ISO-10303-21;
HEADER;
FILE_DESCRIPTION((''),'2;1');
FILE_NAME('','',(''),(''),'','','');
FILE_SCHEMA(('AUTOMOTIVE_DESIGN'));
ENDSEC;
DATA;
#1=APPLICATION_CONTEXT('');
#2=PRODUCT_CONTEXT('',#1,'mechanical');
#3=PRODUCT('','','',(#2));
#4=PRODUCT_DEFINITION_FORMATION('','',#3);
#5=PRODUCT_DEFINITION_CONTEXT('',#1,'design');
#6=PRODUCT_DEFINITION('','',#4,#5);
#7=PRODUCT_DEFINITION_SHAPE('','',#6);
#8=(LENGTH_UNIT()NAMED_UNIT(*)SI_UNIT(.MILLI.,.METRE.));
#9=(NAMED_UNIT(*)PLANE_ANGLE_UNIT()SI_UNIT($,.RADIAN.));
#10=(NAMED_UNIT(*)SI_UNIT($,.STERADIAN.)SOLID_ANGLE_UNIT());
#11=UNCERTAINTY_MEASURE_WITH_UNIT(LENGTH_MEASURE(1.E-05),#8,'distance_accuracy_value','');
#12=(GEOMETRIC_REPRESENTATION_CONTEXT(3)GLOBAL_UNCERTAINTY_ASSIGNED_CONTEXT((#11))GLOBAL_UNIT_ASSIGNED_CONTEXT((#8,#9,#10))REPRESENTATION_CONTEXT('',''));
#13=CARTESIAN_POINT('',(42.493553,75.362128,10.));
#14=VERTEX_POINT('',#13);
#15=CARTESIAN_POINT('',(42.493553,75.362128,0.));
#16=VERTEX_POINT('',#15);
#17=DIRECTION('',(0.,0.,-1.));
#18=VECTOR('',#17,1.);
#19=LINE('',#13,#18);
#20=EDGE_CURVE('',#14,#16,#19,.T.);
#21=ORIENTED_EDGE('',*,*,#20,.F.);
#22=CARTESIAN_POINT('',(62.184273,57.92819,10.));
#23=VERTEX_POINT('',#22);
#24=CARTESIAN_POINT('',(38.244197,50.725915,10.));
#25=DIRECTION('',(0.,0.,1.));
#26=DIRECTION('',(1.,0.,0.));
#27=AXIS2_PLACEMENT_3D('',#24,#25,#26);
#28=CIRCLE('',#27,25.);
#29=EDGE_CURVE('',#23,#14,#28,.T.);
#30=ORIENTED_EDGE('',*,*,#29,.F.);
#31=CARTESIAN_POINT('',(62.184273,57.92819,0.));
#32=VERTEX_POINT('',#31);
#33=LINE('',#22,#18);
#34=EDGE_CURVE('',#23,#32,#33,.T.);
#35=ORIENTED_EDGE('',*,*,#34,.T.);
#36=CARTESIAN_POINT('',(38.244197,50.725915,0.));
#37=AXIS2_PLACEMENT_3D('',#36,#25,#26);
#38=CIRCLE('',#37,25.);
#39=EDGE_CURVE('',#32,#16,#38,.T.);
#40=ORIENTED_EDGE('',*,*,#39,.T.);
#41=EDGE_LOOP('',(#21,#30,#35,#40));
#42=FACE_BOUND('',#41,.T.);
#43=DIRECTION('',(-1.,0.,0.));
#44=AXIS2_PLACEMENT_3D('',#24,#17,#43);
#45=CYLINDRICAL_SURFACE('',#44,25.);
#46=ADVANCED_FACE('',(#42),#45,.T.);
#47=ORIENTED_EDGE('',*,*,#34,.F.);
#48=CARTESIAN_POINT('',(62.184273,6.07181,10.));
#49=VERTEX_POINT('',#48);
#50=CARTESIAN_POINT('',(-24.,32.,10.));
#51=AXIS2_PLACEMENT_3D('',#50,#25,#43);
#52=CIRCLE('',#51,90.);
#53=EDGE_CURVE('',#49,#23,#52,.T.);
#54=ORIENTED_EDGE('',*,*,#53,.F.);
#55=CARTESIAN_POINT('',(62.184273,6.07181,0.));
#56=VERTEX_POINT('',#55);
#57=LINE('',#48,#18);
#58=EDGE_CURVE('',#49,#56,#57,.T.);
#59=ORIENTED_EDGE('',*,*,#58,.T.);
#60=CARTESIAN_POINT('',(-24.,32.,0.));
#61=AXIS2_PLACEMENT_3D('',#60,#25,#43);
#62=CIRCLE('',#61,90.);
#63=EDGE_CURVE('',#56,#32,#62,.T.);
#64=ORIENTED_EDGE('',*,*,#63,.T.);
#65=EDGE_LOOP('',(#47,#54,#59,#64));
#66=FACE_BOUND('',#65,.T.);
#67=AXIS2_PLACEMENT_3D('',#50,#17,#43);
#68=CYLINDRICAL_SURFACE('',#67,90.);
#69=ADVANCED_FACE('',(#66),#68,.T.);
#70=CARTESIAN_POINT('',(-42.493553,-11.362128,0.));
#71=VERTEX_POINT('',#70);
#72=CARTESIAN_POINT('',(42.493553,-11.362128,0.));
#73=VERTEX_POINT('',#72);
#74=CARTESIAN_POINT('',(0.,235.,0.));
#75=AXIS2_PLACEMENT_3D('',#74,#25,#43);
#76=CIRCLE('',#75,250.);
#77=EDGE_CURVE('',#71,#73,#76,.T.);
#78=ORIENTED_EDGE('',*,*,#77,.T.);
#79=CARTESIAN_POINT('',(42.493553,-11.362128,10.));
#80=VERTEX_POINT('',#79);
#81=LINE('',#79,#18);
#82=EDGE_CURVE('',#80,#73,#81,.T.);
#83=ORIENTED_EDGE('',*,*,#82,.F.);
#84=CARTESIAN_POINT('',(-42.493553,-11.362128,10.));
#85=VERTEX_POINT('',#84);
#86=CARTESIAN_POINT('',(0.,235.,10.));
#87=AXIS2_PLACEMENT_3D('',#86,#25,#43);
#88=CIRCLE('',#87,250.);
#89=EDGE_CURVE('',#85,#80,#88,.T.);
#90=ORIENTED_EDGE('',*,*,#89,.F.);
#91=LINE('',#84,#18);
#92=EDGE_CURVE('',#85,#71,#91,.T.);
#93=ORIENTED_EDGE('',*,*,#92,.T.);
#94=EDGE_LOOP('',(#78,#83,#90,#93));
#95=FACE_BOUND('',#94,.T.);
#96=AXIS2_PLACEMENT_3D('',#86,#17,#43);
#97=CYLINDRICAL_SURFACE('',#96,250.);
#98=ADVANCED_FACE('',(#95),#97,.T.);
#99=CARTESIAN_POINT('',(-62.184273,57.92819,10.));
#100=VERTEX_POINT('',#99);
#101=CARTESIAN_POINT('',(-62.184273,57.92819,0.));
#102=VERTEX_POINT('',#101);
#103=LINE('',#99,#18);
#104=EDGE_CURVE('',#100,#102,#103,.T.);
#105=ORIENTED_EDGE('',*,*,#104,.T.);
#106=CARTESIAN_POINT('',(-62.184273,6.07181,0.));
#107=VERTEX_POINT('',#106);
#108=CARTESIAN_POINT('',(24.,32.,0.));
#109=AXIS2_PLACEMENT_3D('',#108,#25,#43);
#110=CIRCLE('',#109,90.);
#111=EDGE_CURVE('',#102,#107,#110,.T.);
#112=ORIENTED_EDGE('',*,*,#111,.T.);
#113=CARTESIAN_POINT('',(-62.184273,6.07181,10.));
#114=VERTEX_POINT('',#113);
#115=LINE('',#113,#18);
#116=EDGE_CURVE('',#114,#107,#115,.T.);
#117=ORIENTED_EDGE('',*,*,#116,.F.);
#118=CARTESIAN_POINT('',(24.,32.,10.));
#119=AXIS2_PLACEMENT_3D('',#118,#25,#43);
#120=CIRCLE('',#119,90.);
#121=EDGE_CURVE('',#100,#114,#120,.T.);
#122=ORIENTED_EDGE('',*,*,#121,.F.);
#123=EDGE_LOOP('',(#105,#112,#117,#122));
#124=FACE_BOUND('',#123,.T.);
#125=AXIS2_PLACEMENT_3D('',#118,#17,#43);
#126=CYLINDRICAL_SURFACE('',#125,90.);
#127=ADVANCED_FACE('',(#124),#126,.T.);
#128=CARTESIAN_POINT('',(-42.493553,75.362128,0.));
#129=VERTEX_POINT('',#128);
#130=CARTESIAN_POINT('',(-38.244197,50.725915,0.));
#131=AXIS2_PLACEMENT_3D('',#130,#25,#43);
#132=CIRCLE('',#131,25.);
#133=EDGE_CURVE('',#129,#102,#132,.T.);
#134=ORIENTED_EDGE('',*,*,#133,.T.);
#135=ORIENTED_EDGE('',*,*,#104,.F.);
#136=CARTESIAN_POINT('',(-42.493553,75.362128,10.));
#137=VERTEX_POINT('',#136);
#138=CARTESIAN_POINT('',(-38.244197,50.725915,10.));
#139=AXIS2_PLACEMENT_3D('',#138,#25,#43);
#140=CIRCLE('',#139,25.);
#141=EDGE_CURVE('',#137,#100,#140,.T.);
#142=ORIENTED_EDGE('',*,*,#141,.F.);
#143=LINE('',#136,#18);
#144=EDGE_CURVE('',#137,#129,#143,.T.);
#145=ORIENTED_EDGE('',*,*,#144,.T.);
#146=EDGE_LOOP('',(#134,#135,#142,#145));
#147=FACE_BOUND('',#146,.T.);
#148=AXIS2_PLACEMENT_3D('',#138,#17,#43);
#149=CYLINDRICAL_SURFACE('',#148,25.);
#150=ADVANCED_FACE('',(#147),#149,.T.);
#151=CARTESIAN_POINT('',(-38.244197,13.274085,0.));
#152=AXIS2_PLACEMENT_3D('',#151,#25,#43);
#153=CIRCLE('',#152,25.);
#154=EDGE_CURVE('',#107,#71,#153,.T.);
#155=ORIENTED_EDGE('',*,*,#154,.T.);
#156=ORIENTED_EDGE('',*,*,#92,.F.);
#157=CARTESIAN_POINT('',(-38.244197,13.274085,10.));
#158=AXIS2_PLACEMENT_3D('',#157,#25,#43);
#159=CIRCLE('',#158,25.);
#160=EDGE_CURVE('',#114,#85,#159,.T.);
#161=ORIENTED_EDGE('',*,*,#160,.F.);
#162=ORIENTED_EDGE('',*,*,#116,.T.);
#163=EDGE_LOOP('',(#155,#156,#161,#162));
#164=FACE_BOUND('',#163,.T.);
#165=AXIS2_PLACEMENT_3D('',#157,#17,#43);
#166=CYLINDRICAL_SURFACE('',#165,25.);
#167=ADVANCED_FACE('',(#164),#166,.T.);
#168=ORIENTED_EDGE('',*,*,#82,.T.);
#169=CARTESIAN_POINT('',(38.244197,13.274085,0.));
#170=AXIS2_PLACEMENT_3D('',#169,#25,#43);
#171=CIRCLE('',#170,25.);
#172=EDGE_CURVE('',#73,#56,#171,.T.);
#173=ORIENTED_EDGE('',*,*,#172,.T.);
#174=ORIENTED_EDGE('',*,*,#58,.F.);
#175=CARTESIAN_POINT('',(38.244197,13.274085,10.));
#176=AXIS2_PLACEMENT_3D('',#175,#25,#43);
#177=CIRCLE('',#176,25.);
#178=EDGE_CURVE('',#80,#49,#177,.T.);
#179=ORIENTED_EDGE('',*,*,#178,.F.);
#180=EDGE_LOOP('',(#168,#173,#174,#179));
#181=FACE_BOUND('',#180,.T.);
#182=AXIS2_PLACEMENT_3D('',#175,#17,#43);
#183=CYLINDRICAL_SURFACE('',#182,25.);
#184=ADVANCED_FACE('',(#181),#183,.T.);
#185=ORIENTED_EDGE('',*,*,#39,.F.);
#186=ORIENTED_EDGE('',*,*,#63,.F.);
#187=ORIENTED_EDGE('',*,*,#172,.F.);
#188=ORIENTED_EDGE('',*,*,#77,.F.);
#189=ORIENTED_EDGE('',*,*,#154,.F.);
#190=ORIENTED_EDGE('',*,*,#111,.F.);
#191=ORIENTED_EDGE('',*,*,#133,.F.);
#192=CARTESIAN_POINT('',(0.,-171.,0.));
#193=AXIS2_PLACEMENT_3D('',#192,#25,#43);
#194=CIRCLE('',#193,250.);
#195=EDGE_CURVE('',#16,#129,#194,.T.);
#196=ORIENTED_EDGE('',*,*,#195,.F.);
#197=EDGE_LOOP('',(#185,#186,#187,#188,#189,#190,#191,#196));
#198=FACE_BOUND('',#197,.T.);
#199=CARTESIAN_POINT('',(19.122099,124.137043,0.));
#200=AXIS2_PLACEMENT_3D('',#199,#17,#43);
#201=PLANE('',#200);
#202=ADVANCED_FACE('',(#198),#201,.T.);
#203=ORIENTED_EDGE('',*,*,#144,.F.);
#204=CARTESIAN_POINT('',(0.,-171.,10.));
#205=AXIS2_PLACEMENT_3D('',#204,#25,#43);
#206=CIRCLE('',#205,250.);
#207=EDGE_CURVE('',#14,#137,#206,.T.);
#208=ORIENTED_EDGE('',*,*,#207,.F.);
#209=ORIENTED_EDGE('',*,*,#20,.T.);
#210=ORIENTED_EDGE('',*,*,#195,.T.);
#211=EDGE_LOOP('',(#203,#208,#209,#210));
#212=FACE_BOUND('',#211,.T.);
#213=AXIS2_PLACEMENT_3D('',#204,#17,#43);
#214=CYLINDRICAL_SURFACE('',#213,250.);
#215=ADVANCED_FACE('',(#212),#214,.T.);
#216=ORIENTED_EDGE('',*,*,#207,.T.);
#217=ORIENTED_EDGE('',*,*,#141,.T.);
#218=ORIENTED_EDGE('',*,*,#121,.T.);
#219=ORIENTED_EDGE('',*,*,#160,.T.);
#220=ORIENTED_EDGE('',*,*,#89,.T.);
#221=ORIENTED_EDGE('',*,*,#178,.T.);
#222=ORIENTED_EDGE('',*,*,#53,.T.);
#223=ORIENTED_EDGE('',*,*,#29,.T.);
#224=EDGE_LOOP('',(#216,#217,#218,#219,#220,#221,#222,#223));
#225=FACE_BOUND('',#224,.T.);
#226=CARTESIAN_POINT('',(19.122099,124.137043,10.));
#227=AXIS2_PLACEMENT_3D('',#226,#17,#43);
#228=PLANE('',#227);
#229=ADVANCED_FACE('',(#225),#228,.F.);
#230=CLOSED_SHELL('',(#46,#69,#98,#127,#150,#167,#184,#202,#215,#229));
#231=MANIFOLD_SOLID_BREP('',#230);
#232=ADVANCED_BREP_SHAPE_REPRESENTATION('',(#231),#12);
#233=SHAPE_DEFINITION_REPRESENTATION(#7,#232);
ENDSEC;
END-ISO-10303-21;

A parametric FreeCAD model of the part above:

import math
import FreeCAD as App
import Part
import Sketcher
from FreeCAD import Vector

doc = App.newDocument("Part")
params = doc.addObject("Spreadsheet::Sheet", "Params")
for row, (alias, value) in enumerate([
    ("sketch1_radius", "25 mm"),
    ("sketch1_radius2", "250 mm"),
    ("sketch1_radius3", "90 mm"),
    ("pad1_length", "10 mm"),
], start=1):
    params.set(f"A{row}", alias)
    params.set(f"B{row}", "=" + value)
    params.setAlias(f"B{row}", alias)

body = doc.addObject("PartDesign::Body", "Body")

# Sketch on XY plane
sketch1 = body.newObject("Sketcher::SketchObject", "Sketch")
sketch1.AttachmentSupport = (doc.getObject("XY_Plane"), [""])
sketch1.MapMode = "FlatFace"
sketch1.addGeometry([
    Part.ArcOfCircle(Part.Circle(Vector(38, 51, 0), Vector(0, 0, 1), 25), math.radians(17), math.radians(80)),  # 0
    Part.ArcOfCircle(Part.Circle(Vector(0, -171, 0), Vector(0, 0, 1), 250), math.radians(80.21), math.radians(99.79)),  # 1
    Part.ArcOfCircle(Part.Circle(Vector(-38, 51, 0), Vector(0, 0, 1), 25), math.radians(100), math.radians(163)),  # 2
    Part.ArcOfCircle(Part.Circle(Vector(24, 32, 0), Vector(0, 0, 1), 90), math.radians(163), math.radians(197)),  # 3
    Part.ArcOfCircle(Part.Circle(Vector(-38, 13, 0), Vector(0, 0, 1), 25), math.radians(-163), math.radians(-100)),  # 4
    Part.ArcOfCircle(Part.Circle(Vector(0, 235, 0), Vector(0, 0, 1), 250), math.radians(-99.79), math.radians(-80.21)),  # 5
    Part.ArcOfCircle(Part.Circle(Vector(38, 13, 0), Vector(0, 0, 1), 25), math.radians(-80), math.radians(-17)),  # 6
    Part.ArcOfCircle(Part.Circle(Vector(-24, 32, 0), Vector(0, 0, 1), 90), math.radians(-17), math.radians(17)),  # 7
], False)
sketch1.addConstraint([
    Sketcher.Constraint("Tangent", 0, 2, 1, 1),
    Sketcher.Constraint("Tangent", 1, 2, 2, 1),
    Sketcher.Constraint("Tangent", 2, 2, 3, 1),
    Sketcher.Constraint("Tangent", 3, 2, 4, 1),
    Sketcher.Constraint("Tangent", 4, 2, 5, 1),
    Sketcher.Constraint("Tangent", 5, 2, 6, 1),
    Sketcher.Constraint("Tangent", 6, 2, 7, 1),
    Sketcher.Constraint("Tangent", 7, 2, 0, 1),
    Sketcher.Constraint("Equal", 0, 2),
    Sketcher.Constraint("Equal", 2, 4),
    Sketcher.Constraint("Equal", 1, 5),
    Sketcher.Constraint("Equal", 4, 6),
    Sketcher.Constraint("Equal", 3, 7),
    Sketcher.Constraint("Symmetric", 0, 3, 2, 3, -2),
    Sketcher.Constraint("Symmetric", 4, 3, 6, 3, -2),
    Sketcher.Constraint("Vertical", 2, 3, 4, 3),
    Sketcher.Constraint("Radius", 0, 25.0),
    Sketcher.Constraint("Radius", 1, 250.0),
    Sketcher.Constraint("Radius", 3, 90.0),
    Sketcher.Constraint("DistanceY", 1, 3, -1, 1, 171.0),
    Sketcher.Constraint("DistanceX", -1, 1, 3, 3, 24.0),
    Sketcher.Constraint("DistanceY", -1, 1, 3, 3, 32.0),
])
sketch1.setExpression("Constraints[16]", "Params.sketch1_radius")
sketch1.setExpression("Constraints[17]", "Params.sketch1_radius2")
sketch1.setExpression("Constraints[18]", "Params.sketch1_radius3")
pad1 = body.newObject("PartDesign::Pad", "Pad")
pad1.Profile = sketch1
pad1.setExpression("Length", "Params.pad1_length")

doc.recompute()
